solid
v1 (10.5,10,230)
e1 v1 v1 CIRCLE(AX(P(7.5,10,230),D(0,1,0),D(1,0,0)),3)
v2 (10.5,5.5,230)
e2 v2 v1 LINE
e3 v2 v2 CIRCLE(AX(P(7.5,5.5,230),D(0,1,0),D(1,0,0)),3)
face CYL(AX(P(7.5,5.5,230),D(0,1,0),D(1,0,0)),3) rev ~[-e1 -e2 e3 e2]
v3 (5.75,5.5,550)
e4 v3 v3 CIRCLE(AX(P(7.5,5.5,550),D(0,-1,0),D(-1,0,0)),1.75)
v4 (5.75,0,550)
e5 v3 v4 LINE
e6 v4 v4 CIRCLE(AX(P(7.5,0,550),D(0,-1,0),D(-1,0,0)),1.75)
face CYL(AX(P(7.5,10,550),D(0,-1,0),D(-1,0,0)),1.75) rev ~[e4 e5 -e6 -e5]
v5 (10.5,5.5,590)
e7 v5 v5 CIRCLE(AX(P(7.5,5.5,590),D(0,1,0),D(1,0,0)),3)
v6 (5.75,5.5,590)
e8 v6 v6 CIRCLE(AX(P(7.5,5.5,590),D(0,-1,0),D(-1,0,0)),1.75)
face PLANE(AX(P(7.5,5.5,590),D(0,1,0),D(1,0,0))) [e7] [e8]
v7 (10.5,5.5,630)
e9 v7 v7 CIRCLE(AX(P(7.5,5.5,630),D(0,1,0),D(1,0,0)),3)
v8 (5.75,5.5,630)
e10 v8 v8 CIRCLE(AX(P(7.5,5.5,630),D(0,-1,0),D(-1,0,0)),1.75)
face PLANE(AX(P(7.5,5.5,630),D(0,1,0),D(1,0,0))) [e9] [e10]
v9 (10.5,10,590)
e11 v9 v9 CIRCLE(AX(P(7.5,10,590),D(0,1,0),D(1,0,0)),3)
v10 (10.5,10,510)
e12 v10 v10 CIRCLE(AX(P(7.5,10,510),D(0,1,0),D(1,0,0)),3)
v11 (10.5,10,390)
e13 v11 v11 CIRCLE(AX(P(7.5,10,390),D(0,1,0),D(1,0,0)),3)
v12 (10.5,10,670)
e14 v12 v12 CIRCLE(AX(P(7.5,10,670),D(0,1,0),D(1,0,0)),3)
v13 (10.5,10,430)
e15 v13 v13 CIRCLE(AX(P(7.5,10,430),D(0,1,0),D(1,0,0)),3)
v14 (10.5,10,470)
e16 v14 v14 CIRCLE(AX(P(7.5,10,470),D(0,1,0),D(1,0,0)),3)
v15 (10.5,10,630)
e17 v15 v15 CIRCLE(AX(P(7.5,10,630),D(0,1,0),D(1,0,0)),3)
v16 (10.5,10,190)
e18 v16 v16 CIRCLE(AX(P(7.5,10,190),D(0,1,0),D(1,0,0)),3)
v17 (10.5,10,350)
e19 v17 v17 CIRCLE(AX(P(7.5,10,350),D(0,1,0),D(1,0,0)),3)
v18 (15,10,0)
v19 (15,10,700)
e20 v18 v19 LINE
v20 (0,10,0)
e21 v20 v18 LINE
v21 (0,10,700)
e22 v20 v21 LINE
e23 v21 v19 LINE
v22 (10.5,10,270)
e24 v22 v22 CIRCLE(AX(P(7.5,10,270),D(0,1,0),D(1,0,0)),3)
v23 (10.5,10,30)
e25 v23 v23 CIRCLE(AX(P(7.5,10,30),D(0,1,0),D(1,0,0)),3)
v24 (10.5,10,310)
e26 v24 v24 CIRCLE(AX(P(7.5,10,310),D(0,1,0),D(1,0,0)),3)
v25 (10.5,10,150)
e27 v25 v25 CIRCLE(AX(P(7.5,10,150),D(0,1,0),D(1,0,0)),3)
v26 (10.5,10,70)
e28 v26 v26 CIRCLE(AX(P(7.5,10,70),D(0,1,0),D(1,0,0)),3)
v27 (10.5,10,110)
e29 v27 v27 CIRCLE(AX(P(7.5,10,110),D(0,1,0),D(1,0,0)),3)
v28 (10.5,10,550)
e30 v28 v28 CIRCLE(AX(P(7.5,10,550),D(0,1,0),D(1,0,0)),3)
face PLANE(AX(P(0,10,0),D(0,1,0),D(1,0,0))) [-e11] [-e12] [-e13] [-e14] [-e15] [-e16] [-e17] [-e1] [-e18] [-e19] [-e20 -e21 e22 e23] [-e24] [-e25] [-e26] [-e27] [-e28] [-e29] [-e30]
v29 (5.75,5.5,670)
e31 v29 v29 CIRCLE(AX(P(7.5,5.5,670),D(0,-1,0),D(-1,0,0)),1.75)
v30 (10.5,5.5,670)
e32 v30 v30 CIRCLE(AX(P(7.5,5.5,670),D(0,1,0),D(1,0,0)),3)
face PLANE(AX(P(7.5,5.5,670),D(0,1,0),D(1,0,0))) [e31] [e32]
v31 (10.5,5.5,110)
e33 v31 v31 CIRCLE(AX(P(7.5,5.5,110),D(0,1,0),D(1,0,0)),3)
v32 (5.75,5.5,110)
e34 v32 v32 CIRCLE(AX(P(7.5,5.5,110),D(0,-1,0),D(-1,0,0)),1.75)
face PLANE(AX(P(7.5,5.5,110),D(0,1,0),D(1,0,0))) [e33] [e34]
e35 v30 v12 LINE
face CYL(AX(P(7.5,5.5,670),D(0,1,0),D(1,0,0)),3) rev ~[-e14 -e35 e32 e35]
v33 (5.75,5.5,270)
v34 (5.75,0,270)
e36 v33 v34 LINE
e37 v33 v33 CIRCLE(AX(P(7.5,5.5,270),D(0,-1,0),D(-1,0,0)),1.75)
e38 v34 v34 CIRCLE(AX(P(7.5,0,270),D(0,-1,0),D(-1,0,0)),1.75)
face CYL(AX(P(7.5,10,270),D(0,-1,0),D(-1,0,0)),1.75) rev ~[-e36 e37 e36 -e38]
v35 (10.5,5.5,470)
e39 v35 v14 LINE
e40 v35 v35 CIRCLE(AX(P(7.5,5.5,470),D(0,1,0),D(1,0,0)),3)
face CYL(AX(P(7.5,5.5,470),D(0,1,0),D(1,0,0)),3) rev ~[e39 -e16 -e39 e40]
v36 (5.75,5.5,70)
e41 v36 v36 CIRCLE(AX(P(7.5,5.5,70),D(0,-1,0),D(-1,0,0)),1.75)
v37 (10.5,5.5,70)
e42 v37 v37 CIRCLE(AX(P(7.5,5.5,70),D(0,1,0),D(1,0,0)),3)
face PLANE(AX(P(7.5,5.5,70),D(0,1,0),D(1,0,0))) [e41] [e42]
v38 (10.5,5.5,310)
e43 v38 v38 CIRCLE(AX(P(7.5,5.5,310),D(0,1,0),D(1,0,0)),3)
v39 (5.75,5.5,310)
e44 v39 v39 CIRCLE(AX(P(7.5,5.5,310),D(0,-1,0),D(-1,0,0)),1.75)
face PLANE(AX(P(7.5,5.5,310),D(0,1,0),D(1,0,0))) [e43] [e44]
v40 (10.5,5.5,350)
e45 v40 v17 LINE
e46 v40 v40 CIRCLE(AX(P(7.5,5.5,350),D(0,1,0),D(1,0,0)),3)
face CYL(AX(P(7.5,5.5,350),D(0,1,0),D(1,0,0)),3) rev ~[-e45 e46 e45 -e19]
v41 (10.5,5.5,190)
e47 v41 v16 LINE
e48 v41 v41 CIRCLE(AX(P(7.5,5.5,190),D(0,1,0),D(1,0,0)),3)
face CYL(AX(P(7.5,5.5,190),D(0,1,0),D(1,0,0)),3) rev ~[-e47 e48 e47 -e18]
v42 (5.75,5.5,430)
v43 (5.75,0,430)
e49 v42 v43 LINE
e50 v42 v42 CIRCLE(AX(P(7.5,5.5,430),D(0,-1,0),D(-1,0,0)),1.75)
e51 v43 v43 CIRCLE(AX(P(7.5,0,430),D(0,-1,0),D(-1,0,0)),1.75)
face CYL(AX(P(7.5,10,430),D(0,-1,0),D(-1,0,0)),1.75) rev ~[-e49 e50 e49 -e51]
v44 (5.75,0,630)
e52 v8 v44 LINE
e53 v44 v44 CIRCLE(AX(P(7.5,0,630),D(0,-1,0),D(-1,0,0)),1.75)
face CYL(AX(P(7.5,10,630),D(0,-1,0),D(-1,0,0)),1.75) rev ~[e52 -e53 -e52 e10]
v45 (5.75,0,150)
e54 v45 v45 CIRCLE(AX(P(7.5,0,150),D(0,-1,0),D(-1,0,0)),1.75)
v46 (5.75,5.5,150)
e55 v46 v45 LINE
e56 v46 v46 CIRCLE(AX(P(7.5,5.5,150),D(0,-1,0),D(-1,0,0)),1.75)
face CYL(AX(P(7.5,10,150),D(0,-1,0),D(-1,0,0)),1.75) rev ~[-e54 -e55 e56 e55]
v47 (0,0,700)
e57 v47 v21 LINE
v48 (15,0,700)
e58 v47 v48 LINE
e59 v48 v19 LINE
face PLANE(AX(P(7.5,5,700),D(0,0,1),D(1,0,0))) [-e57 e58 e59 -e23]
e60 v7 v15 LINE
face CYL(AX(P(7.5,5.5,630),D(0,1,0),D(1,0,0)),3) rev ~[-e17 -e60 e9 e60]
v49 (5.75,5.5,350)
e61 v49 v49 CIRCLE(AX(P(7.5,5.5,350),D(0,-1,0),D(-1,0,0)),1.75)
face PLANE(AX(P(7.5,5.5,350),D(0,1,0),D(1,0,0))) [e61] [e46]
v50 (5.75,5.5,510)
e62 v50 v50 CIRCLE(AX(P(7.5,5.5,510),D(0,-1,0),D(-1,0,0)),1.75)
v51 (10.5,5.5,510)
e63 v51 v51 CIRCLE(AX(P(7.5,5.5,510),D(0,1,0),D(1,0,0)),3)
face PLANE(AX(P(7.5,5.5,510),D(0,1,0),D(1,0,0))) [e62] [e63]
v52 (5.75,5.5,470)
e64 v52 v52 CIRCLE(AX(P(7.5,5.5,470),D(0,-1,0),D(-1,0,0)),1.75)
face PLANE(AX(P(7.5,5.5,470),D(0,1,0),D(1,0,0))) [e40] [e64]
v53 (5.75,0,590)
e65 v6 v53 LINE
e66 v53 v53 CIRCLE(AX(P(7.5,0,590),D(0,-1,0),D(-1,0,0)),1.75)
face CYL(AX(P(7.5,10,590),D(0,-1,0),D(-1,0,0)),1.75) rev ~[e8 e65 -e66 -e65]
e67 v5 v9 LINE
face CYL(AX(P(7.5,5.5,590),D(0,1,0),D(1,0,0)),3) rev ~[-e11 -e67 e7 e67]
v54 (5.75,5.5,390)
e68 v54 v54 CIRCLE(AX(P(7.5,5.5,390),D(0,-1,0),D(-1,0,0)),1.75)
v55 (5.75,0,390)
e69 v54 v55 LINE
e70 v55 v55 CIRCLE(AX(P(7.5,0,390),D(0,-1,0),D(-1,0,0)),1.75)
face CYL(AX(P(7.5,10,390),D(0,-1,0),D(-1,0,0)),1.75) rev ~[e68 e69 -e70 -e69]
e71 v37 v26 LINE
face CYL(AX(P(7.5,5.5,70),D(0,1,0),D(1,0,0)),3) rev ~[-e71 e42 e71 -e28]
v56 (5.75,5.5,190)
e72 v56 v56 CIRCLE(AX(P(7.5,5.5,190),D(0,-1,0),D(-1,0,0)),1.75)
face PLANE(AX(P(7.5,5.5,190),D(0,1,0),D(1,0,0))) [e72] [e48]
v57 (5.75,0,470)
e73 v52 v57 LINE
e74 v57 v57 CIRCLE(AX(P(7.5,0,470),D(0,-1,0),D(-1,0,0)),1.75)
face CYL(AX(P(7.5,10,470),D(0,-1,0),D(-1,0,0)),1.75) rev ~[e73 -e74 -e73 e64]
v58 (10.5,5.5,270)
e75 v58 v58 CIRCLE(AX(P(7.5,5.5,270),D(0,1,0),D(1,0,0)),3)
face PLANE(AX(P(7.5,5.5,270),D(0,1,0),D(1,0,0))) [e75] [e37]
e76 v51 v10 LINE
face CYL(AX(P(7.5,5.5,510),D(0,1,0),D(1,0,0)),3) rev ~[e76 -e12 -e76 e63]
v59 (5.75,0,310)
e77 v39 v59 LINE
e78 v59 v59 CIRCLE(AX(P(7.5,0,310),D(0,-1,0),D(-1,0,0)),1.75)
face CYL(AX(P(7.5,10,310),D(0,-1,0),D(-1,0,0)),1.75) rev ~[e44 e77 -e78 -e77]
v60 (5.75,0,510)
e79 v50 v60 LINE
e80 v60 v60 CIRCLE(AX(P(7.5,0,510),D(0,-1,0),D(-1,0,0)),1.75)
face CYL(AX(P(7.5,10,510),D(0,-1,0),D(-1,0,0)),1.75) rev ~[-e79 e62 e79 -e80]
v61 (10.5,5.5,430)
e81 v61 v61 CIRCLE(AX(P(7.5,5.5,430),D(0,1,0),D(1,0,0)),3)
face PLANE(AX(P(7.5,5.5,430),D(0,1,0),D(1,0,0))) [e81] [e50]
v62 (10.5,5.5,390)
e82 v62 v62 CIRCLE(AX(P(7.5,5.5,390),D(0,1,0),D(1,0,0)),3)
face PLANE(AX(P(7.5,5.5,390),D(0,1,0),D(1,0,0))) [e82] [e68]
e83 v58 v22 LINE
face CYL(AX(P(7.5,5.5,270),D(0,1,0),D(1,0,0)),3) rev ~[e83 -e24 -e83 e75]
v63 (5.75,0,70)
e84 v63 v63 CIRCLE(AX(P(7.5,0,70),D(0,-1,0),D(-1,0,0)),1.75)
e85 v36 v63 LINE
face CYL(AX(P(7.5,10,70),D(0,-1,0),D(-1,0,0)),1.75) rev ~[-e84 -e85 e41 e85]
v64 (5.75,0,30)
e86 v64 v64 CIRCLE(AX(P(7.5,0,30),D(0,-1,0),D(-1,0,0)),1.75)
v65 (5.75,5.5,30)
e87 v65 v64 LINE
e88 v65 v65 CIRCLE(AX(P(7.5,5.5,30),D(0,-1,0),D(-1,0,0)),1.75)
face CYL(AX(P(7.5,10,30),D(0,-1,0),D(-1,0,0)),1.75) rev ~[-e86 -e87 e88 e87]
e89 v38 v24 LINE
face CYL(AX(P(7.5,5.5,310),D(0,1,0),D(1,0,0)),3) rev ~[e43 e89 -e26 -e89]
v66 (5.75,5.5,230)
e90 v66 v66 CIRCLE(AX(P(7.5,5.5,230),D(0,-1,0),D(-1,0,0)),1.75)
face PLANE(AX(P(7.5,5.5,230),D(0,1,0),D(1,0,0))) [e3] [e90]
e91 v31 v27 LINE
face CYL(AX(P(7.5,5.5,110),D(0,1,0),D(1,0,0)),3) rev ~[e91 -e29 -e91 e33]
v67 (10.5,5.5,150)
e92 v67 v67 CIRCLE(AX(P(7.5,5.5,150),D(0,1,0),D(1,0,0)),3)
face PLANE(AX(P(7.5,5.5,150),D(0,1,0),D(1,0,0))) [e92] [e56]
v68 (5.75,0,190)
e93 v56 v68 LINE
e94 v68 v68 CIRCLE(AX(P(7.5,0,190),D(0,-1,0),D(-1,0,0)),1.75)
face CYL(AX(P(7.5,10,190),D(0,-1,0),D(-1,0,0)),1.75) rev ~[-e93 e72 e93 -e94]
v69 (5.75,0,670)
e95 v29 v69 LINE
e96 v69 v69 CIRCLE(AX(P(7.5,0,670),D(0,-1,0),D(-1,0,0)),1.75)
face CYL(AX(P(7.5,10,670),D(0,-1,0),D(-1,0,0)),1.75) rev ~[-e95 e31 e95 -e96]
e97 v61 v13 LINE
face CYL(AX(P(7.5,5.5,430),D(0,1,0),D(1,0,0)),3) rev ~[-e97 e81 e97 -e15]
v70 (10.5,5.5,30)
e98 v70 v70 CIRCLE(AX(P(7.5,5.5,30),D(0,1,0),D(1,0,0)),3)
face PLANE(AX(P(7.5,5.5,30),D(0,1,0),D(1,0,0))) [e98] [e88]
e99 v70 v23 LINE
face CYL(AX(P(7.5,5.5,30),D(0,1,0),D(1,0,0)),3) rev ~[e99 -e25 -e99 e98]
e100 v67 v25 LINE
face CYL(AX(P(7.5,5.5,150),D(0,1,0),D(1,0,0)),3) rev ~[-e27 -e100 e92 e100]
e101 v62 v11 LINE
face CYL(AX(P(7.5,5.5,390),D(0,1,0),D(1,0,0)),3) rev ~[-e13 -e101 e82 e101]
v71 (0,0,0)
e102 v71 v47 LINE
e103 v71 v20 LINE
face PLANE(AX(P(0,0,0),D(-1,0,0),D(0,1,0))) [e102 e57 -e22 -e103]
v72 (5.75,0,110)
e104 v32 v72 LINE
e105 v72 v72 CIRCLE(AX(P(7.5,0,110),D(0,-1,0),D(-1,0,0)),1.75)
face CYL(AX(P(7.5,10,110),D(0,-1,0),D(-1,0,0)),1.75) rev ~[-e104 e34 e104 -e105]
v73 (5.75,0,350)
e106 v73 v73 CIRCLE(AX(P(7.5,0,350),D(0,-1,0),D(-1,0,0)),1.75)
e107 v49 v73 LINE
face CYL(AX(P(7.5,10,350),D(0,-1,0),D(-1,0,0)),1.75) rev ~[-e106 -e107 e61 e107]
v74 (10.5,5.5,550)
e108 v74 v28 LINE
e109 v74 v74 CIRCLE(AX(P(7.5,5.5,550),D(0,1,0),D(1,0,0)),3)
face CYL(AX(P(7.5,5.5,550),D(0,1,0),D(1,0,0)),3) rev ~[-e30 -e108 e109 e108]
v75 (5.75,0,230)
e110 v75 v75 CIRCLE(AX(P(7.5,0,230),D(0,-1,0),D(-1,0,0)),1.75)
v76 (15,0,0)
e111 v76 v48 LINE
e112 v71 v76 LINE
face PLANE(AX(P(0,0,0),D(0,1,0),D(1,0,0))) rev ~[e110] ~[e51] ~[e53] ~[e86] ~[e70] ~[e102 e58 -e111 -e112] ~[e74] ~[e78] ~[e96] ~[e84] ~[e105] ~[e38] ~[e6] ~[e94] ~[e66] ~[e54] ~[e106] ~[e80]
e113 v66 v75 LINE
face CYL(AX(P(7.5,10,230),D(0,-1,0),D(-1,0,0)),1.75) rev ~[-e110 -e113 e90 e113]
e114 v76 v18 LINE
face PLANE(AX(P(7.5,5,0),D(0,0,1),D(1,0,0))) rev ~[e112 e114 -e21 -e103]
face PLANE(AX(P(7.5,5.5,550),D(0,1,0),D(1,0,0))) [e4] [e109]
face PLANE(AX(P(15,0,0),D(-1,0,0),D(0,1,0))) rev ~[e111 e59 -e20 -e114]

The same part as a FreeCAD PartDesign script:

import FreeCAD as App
import Part
import Sketcher
Q = App.Units.Quantity


def add_polygon(sketch, points):
    """Adds a closed chain of lines whose ends are joined by coincident constraints."""
    first, n = sketch.GeometryCount, len(points)
    for a, b in zip(points, points[1:] + points[:1]):
        sketch.addGeometry(Part.LineSegment(App.Vector(*a, 0), App.Vector(*b, 0)), False)
    for i in range(n):
        sketch.addConstraint(Sketcher.Constraint("Coincident", first + i, 2, first + (i + 1) % n, 1))

doc = App.newDocument("Part")
params = doc.addObject("Spreadsheet::Sheet", "Params")
for row, (alias, value) in enumerate([
    ("sketch1_width", "15 mm"),
    ("sketch1_height", "10 mm"),
    ("pad1_length", "700 mm"),
    ("sketch2_diameter", "3.5 mm"),
    ("hole_diameter", "3.5 mm"),
    ("hole_cbore_diameter", "6 mm"),
    ("hole_cbore_depth", "4.5 mm"),
    ("linearpattern_pitch", "40 mm"),
], start=1):
    params.set(f"A{row}", alias)
    params.set(f"B{row}", "=" + value)
    params.setAlias(f"B{row}", alias)

body = doc.addObject("PartDesign::Body", "Body")

# Sketch on XY plane
sketch1 = body.newObject("Sketcher::SketchObject", "Sketch")
sketch1.AttachmentSupport = (doc.getObject("XY_Plane"), [""])
sketch1.MapMode = "FlatFace"
add_polygon(sketch1, [(0, 10), (0, 0), (15, 0), (15, 10)])  # lines 0-3
sketch1.addConstraint(Sketcher.Constraint("Vertical", 0))
sketch1.addConstraint(Sketcher.Constraint("Horizontal", 1))
sketch1.addConstraint(Sketcher.Constraint("Vertical", 2))
sketch1.addConstraint(Sketcher.Constraint("Horizontal", 3))
sketch1.addConstraint(Sketcher.Constraint("Coincident", 0, 2, -1, 1))
sketch1.addConstraint(Sketcher.Constraint("DistanceX", 1, 1, 1, 2, Q("15 mm")))
sketch1.addConstraint(Sketcher.Constraint("DistanceY", 0, 2, 0, 1, Q("10 mm")))
sketch1.setExpression("Constraints[9]", "Params.sketch1_width")
sketch1.setExpression("Constraints[10]", "Params.sketch1_height")
pad1 = body.newObject("PartDesign::Pad", "Pad")
pad1.Profile = sketch1
pad1.setExpression("Length", "Params.pad1_length")

# Sketch on XZ plane
sketch2 = body.newObject("Sketcher::SketchObject", "Sketch001")
sketch2.AttachmentSupport = (doc.getObject("XZ_Plane"), [""])
sketch2.MapMode = "FlatFace"
sketch2.AttachmentOffset = App.Placement(App.Vector(0, 0, -10), App.Rotation())
sketch2.addGeometry(Part.Circle(App.Vector(7.5, 670, 0), App.Vector(0, 0, 1), 1.8), False)
sketch2.addConstraint(Sketcher.Constraint("Diameter", 0, Q("3.5 mm")))
sketch2.addConstraint(Sketcher.Constraint("DistanceY", -1, 1, 0, 3, Q("670 mm")))
sketch2.addConstraint(Sketcher.Constraint("DistanceX", -1, 1, 0, 3, Q("7.5 mm")))
sketch2.setExpression("Constraints[0]", "Params.sketch2_diameter")
doc.recompute()
hole = body.newObject("PartDesign::Hole", "Hole")
hole.Profile = sketch2
hole.ThreadType = "None"
hole.setExpression("Diameter", "Params.hole_diameter")
hole.DepthType = "ThroughAll"
hole.HoleCutType = "Counterbore"
hole.setExpression("HoleCutDiameter", "Params.hole_cbore_diameter")
hole.setExpression("HoleCutDepth", "Params.hole_cbore_depth")
hole.Reversed = True
doc.recompute()

linearpattern = body.newObject("PartDesign::LinearPattern", "LinearPattern")
linearpattern.Originals = [hole]
linearpattern.Direction = (doc.getObject("Z_Axis"), [""])
linearpattern.Mode = "offset"
linearpattern.setExpression("Offset", "Params.linearpattern_pitch")
linearpattern.Occurrences = 17
linearpattern.Reversed = True
body.Tip = linearpattern

doc.recompute()
